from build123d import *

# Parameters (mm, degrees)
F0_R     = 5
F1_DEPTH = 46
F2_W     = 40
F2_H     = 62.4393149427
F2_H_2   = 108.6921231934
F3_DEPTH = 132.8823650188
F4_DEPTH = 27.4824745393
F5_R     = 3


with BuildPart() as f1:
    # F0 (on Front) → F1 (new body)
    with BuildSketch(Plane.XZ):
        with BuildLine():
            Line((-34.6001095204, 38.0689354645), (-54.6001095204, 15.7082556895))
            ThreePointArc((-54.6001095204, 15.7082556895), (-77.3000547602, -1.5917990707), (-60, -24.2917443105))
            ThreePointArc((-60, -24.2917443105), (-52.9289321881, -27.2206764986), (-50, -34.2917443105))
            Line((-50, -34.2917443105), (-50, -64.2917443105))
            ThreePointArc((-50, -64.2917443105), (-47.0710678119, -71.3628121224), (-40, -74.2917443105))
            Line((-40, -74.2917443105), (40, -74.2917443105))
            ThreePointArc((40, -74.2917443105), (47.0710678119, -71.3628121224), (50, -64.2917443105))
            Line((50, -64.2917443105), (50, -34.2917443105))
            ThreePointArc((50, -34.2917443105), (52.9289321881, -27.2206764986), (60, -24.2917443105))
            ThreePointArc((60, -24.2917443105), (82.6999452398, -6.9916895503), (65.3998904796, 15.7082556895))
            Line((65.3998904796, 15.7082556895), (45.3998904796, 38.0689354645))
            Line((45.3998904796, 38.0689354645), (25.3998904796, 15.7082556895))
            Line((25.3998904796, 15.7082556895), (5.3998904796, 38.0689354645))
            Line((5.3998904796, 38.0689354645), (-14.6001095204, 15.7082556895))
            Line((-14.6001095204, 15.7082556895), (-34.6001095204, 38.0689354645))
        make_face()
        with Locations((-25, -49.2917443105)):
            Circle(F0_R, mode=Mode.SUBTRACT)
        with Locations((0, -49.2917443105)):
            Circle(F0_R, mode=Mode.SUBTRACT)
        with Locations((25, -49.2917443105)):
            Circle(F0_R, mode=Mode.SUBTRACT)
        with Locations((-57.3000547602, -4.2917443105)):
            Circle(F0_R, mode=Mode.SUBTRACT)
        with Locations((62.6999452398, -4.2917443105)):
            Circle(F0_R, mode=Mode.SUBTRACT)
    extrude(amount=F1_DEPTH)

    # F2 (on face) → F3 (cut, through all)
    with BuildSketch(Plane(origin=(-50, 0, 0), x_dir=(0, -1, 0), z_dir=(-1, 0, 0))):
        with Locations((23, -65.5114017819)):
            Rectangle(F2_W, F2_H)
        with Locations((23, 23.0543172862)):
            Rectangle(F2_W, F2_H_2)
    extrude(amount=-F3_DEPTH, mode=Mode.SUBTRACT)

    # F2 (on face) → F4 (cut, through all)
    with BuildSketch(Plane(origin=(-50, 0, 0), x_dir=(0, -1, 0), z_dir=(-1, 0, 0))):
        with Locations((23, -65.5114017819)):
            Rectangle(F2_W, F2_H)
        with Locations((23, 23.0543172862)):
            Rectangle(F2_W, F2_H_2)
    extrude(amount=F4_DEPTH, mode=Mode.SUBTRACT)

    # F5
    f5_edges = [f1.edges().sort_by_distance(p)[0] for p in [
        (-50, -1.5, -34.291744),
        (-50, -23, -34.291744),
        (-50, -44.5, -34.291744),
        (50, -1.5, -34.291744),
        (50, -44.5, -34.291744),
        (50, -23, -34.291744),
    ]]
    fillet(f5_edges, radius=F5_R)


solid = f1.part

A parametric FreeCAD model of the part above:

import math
import FreeCAD as App
import Part
import Sketcher


def edges_at(feature, points):
    """Names of the edges that pass closest to the given points."""
    edges = feature.Shape.Edges
    near = lambda p: min(range(len(edges)), key=lambda i: edges[i].distToShape(Part.Vertex(*p))[0])
    return sorted({f"Edge{near(p) + 1}" for p in points})

doc = App.newDocument("Part")
body = doc.addObject("PartDesign::Body", "Body")

# Sketch on XZ plane
sketch1 = body.newObject("Sketcher::SketchObject", "Sketch")
sketch1.AttachmentSupport = (doc.getObject("XZ_Plane"), [""])
sketch1.MapMode = "FlatFace"
sketch1.addGeometry(Part.LineSegment(App.Vector(-35, 38, 0), App.Vector(-55, 16, 0)), False)
sketch1.addGeometry(Part.ArcOfCircle(Part.Circle(App.Vector(-57, -4, 0), App.Vector(0, 0, 1), 20), math.radians(82), math.radians(262)), False)
sketch1.addGeometry(Part.ArcOfCircle(Part.Circle(App.Vector(-60, -34, 0), App.Vector(0, 0, 1), 10), math.radians(0), math.radians(90)), False)
sketch1.addGeometry(Part.LineSegment(App.Vector(-50, -34, 0), App.Vector(-50, -64, 0)), False)
sketch1.addGeometry(Part.ArcOfCircle(Part.Circle(App.Vector(-40, -64, 0), App.Vector(0, 0, 1), 10), math.radians(180), math.radians(270)), False)
sketch1.addGeometry(Part.LineSegment(App.Vector(-40, -74, 0), App.Vector(40, -74, 0)), False)
sketch1.addGeometry(Part.ArcOfCircle(Part.Circle(App.Vector(40, -64, 0), App.Vector(0, 0, 1), 10), math.radians(-90), math.radians(0)), False)
sketch1.addGeometry(Part.LineSegment(App.Vector(50, -64, 0), App.Vector(50, -34, 0)), False)
sketch1.addGeometry(Part.ArcOfCircle(Part.Circle(App.Vector(60, -34, 0), App.Vector(0, 0, 1), 10), math.radians(90), math.radians(180)), False)
sketch1.addGeometry(Part.ArcOfCircle(Part.Circle(App.Vector(63, -4, 0), App.Vector(0, 0, 1), 20), math.radians(-98), math.radians(82)), False)
sketch1.addGeometry(Part.LineSegment(App.Vector(65, 16, 0), App.Vector(45, 38, 0)), False)
sketch1.addGeometry(Part.LineSegment(App.Vector(45, 38, 0), App.Vector(25, 16, 0)), False)
sketch1.addGeometry(Part.LineSegment(App.Vector(25, 16, 0), App.Vector(5, 38, 0)), False)
sketch1.addGeometry(Part.LineSegment(App.Vector(5, 38, 0), App.Vector(-15, 16, 0)), False)
sketch1.addGeometry(Part.LineSegment(App.Vector(-15, 16, 0), App.Vector(-35, 38, 0)), False)
sketch1.addGeometry(Part.Circle(App.Vector(-25, -49, 0), App.Vector(0, 0, 1), 5), False)
sketch1.addGeometry(Part.Circle(App.Vector(0, -49, 0), App.Vector(0, 0, 1), 5), False)
sketch1.addGeometry(Part.Circle(App.Vector(25, -49, 0), App.Vector(0, 0, 1), 5), False)
sketch1.addGeometry(Part.Circle(App.Vector(-57, -4, 0), App.Vector(0, 0, 1), 5), False)
sketch1.addGeometry(Part.Circle(App.Vector(63, -4, 0), App.Vector(0, 0, 1), 5), False)
sketch1.addConstraint(Sketcher.Constraint("Coincident", 0, 2, 1, 1))
sketch1.addConstraint(Sketcher.Constraint("Coincident", 1, 2, 2, 2))
sketch1.addConstraint(Sketcher.Constraint("Tangent", 2, 1, 3, 1))
sketch1.addConstraint(Sketcher.Constraint("Tangent", 3, 2, 4, 1))
sketch1.addConstraint(Sketcher.Constraint("Tangent", 4, 2, 5, 1))
sketch1.addConstraint(Sketcher.Constraint("Tangent", 5, 2, 6, 1))
sketch1.addConstraint(Sketcher.Constraint("Tangent", 6, 2, 7, 1))
sketch1.addConstraint(Sketcher.Constraint("Tangent", 7, 2, 8, 2))
sketch1.addConstraint(Sketcher.Constraint("Coincident", 8, 1, 9, 1))
sketch1.addConstraint(Sketcher.Constraint("Coincident", 9, 2, 10, 1))
sketch1.addConstraint(Sketcher.Constraint("Coincident", 10, 2, 11, 1))
sketch1.addConstraint(Sketcher.Constraint("Coincident", 11, 2, 12, 1))
sketch1.addConstraint(Sketcher.Constraint("Coincident", 12, 2, 13, 1))
sketch1.addConstraint(Sketcher.Constraint("Coincident", 13, 2, 14, 1))
sketch1.addConstraint(Sketcher.Constraint("Coincident", 14, 2, 0, 1))
sketch1.addConstraint(Sketcher.Constraint("Vertical", 3))
sketch1.addConstraint(Sketcher.Constraint("Horizontal", 5))
sketch1.addConstraint(Sketcher.Constraint("Vertical", 7))
sketch1.addConstraint(Sketcher.Constraint("Coincident", 18, 3, 1, 3))
sketch1.addConstraint(Sketcher.Constraint("Coincident", 19, 3, 9, 3))
sketch1.addConstraint(Sketcher.Constraint("Equal", 2, 4))
sketch1.addConstraint(Sketcher.Constraint("Equal", 4, 6))
sketch1.addConstraint(Sketcher.Constraint("Equal", 6, 8))
sketch1.addConstraint(Sketcher.Constraint("Equal", 1, 9))
sketch1.addConstraint(Sketcher.Constraint("Equal", 15, 16))
sketch1.addConstraint(Sketcher.Constraint("Equal", 16, 17))
sketch1.addConstraint(Sketcher.Constraint("Equal", 17, 18))
sketch1.addConstraint(Sketcher.Constraint("Equal", 18, 19))
sketch1.addConstraint(Sketcher.Constraint("Symmetric", 2, 3, 8, 3, -2))
sketch1.addConstraint(Sketcher.Constraint("Symmetric", 15, 3, 17, 3, -2))
sketch1.addConstraint(Sketcher.Constraint("PointOnObject", 16, 3, -2))
sketch1.addConstraint(Sketcher.Constraint("Parallel", 0, 11))
sketch1.addConstraint(Sketcher.Constraint("Parallel", 10, 12))
sketch1.addConstraint(Sketcher.Constraint("Parallel", 11, 13))
sketch1.addConstraint(Sketcher.Constraint("Parallel", 12, 14))
sketch1.addConstraint(Sketcher.Constraint("Horizontal", 1, 3, 9, 3))
sketch1.addConstraint(Sketcher.Constraint("Horizontal", 15, 3, 16, 3))
sketch1.addConstraint(Sketcher.Constraint("Horizontal", 0, 2, 9, 2))
sketch1.addConstraint(Sketcher.Constraint("Horizontal", 9, 2, 11, 2))
sketch1.addConstraint(Sketcher.Constraint("Horizontal", 10, 2, 12, 2))
sketch1.addConstraint(Sketcher.Constraint("Horizontal", 11, 2, 13, 2))
sketch1.addConstraint(Sketcher.Constraint("Horizontal", 12, 2, 14, 2))
sketch1.addConstraint(Sketcher.Constraint("Vertical", 2, 3, 1, 2))
sketch1.addConstraint(Sketcher.Constraint("Equal", 0, 10))
sketch1.addConstraint(Sketcher.Constraint("Diameter", 15, 10.0))
sketch1.addConstraint(Sketcher.Constraint("Radius", 2, 10.0))
sketch1.addConstraint(Sketcher.Constraint("DistanceX", 5, 1, 5, 2, 80.0))
sketch1.addConstraint(Sketcher.Constraint("DistanceY", 3, 2, 3, 1, 30.0))
sketch1.addConstraint(Sketcher.Constraint("Distance", 0, 30.0))
sketch1.addConstraint(Sketcher.Constraint("DistanceX", 15, 3, -1, 1, 25.0))
sketch1.addConstraint(Sketcher.Constraint("DistanceX", -1, 1, 8, 1, 60.0))
sketch1.addConstraint(Sketcher.Constraint("DistanceY", 2, 3, 1, 3, 30.0))
sketch1.addConstraint(Sketcher.Constraint("DistanceY", 4, 3, 15, 3, 15.0))
sketch1.addConstraint(Sketcher.Constraint("DistanceY", 1, 3, 0, 2, 20.0))
sketch1.addConstraint(Sketcher.Constraint("Radius", 1, 20.18142))
sketch1.addConstraint(Sketcher.Constraint("DistanceY", 1, 3, -1, 1, 4.291744))
pad1 = body.newObject("PartDesign::Pad", "Pad")
pad1.Profile = sketch1
pad1.Length = 46

# Sketch on YZ plane
sketch2 = body.newObject("Sketcher::SketchObject", "Sketch001")
sketch2.AttachmentSupport = (doc.getObject("YZ_Plane"), [""])
sketch2.MapMode = "FlatFace"
sketch2.AttachmentOffset = App.Placement(App.Vector(0, 0, -50), App.Rotation())
sketch2.addGeometry(Part.LineSegment(App.Vector(-3, -34, 0), App.Vector(-3, -97, 0)), False)
sketch2.addGeometry(Part.LineSegment(App.Vector(-3, -97, 0), App.Vector(-43, -97, 0)), False)
sketch2.addGeometry(Part.LineSegment(App.Vector(-43, -97, 0), App.Vector(-43, -34, 0)), False)
sketch2.addGeometry(Part.LineSegment(App.Vector(-43, -34, 0), App.Vector(-3, -34, 0)), False)
sketch2.addGeometry(Part.LineSegment(App.Vector(-3, 77, 0), App.Vector(-3, -31, 0)), False)
sketch2.addGeometry(Part.LineSegment(App.Vector(-3, -31, 0), App.Vector(-43, -31, 0)), False)
sketch2.addGeometry(Part.LineSegment(App.Vector(-43, -31, 0), App.Vector(-43, 77, 0)), False)
sketch2.addGeometry(Part.LineSegment(App.Vector(-43, 77, 0), App.Vector(-3, 77, 0)), False)
sketch2.addConstraint(Sketcher.Constraint("Coincident", 0, 2, 1, 1))
sketch2.addConstraint(Sketcher.Constraint("Coincident", 1, 2, 2, 1))
sketch2.addConstraint(Sketcher.Constraint("Coincident", 2, 2, 3, 1))
sketch2.addConstraint(Sketcher.Constraint("Coincident", 3, 2, 0, 1))
sketch2.addConstraint(Sketcher.Constraint("Coincident", 4, 2, 5, 1))
sketch2.addConstraint(Sketcher.Constraint("Coincident", 5, 2, 6, 1))
sketch2.addConstraint(Sketcher.Constraint("Coincident", 6, 2, 7, 1))
sketch2.addConstraint(Sketcher.Constraint("Coincident", 7, 2, 4, 1))
sketch2.addConstraint(Sketcher.Constraint("Vertical", 0))
sketch2.addConstraint(Sketcher.Constraint("Horizontal", 1))
sketch2.addConstraint(Sketcher.Constraint("Vertical", 2))
sketch2.addConstraint(Sketcher.Constraint("Horizontal", 3))
sketch2.addConstraint(Sketcher.Constraint("Vertical", 4))
sketch2.addConstraint(Sketcher.Constraint("Horizontal", 5))
sketch2.addConstraint(Sketcher.Constraint("Vertical", 6))
sketch2.addConstraint(Sketcher.Constraint("Horizontal", 7))
sketch2.addConstraint(Sketcher.Constraint("Vertical", 3, 2, 4, 2))
sketch2.addConstraint(Sketcher.Constraint("Vertical", 2, 2, 5, 2))
sketch2.addConstraint(Sketcher.Constraint("DistanceX", 1, 2, 1, 1, 40.0))
sketch2.addConstraint(Sketcher.Constraint("DistanceX", 0, 2, -1, 1, 3.0))
sketch2.addConstraint(Sketcher.Constraint("DistanceY", 3, 2, 4, 2, 3.0))
sketch2.addConstraint(Sketcher.Constraint("DistanceY", 0, 2, 0, 1, 62.439315))
sketch2.addConstraint(Sketcher.Constraint("DistanceY", 4, 2, 4, 1, 108.692123))
sketch2.addConstraint(Sketcher.Constraint("DistanceY", 0, 2, -1, 1, 96.731059))
pocket1 = body.newObject("PartDesign::Pocket", "Pocket")
pocket1.Profile = sketch2
pocket1.Type = "ThroughAll"
pocket1.Reversed = True

# Sketch on YZ plane
sketch3 = body.newObject("Sketcher::SketchObject", "Sketch002")
sketch3.AttachmentSupport = (doc.getObject("YZ_Plane"), [""])
sketch3.MapMode = "FlatFace"
sketch3.AttachmentOffset = App.Placement(App.Vector(0, 0, -50), App.Rotation())
sketch3.addGeometry(Part.LineSegment(App.Vector(-3, -34, 0), App.Vector(-3, -97, 0)), False)
sketch3.addGeometry(Part.LineSegment(App.Vector(-3, -97, 0), App.Vector(-43, -97, 0)), False)
sketch3.addGeometry(Part.LineSegment(App.Vector(-43, -97, 0), App.Vector(-43, -34, 0)), False)
sketch3.addGeometry(Part.LineSegment(App.Vector(-43, -34, 0), App.Vector(-3, -34, 0)), False)
sketch3.addGeometry(Part.LineSegment(App.Vector(-3, 77, 0), App.Vector(-3, -31, 0)), False)
sketch3.addGeometry(Part.LineSegment(App.Vector(-3, -31, 0), App.Vector(-43, -31, 0)), False)
sketch3.addGeometry(Part.LineSegment(App.Vector(-43, -31, 0), App.Vector(-43, 77, 0)), False)
sketch3.addGeometry(Part.LineSegment(App.Vector(-43, 77, 0), App.Vector(-3, 77, 0)), False)
sketch3.addConstraint(Sketcher.Constraint("Coincident", 0, 2, 1, 1))
sketch3.addConstraint(Sketcher.Constraint("Coincident", 1, 2, 2, 1))
sketch3.addConstraint(Sketcher.Constraint("Coincident", 2, 2, 3, 1))
sketch3.addConstraint(Sketcher.Constraint("Coincident", 3, 2, 0, 1))
sketch3.addConstraint(Sketcher.Constraint("Coincident", 4, 2, 5, 1))
sketch3.addConstraint(Sketcher.Constraint("Coincident", 5, 2, 6, 1))
sketch3.addConstraint(Sketcher.Constraint("Coincident", 6, 2, 7, 1))
sketch3.addConstraint(Sketcher.Constraint("Coincident", 7, 2, 4, 1))
sketch3.addConstraint(Sketcher.Constraint("Vertical", 0))
sketch3.addConstraint(Sketcher.Constraint("Horizontal", 1))
sketch3.addConstraint(Sketcher.Constraint("Vertical", 2))
sketch3.addConstraint(Sketcher.Constraint("Horizontal", 3))
sketch3.addConstraint(Sketcher.Constraint("Vertical", 4))
sketch3.addConstraint(Sketcher.Constraint("Horizontal", 5))
sketch3.addConstraint(Sketcher.Constraint("Vertical", 6))
sketch3.addConstraint(Sketcher.Constraint("Horizontal", 7))
sketch3.addConstraint(Sketcher.Constraint("Vertical", 3, 2, 4, 2))
sketch3.addConstraint(Sketcher.Constraint("Vertical", 2, 2, 5, 2))
sketch3.addConstraint(Sketcher.Constraint("DistanceX", 1, 2, 1, 1, 40.0))
sketch3.addConstraint(Sketcher.Constraint("DistanceX", 0, 2, -1, 1, 3.0))
sketch3.addConstraint(Sketcher.Constraint("DistanceY", 3, 2, 4, 2, 3.0))
sketch3.addConstraint(Sketcher.Constraint("DistanceY", 0, 2, 0, 1, 62.439315))
sketch3.addConstraint(Sketcher.Constraint("DistanceY", 4, 2, 4, 1, 108.692123))
sketch3.addConstraint(Sketcher.Constraint("DistanceY", 0, 2, -1, 1, 96.731059))
pocket2 = body.newObject("PartDesign::Pocket", "Pocket001")
pocket2.Profile = sketch3
pocket2.Type = "ThroughAll"
doc.recompute()

fillet = body.newObject("PartDesign::Fillet", "Fillet")
fillet.Base = (pocket2, edges_at(pocket2, [
    (-50, -1.5, -34.292),
    (-50, -23, -34.292),
    (-50, -44.5, -34.292),
    (50, -1.5, -34.292),
    (50, -44.5, -34.292),
    (50, -23, -34.292),
]))
fillet.Radius = 3

doc.recompute()
